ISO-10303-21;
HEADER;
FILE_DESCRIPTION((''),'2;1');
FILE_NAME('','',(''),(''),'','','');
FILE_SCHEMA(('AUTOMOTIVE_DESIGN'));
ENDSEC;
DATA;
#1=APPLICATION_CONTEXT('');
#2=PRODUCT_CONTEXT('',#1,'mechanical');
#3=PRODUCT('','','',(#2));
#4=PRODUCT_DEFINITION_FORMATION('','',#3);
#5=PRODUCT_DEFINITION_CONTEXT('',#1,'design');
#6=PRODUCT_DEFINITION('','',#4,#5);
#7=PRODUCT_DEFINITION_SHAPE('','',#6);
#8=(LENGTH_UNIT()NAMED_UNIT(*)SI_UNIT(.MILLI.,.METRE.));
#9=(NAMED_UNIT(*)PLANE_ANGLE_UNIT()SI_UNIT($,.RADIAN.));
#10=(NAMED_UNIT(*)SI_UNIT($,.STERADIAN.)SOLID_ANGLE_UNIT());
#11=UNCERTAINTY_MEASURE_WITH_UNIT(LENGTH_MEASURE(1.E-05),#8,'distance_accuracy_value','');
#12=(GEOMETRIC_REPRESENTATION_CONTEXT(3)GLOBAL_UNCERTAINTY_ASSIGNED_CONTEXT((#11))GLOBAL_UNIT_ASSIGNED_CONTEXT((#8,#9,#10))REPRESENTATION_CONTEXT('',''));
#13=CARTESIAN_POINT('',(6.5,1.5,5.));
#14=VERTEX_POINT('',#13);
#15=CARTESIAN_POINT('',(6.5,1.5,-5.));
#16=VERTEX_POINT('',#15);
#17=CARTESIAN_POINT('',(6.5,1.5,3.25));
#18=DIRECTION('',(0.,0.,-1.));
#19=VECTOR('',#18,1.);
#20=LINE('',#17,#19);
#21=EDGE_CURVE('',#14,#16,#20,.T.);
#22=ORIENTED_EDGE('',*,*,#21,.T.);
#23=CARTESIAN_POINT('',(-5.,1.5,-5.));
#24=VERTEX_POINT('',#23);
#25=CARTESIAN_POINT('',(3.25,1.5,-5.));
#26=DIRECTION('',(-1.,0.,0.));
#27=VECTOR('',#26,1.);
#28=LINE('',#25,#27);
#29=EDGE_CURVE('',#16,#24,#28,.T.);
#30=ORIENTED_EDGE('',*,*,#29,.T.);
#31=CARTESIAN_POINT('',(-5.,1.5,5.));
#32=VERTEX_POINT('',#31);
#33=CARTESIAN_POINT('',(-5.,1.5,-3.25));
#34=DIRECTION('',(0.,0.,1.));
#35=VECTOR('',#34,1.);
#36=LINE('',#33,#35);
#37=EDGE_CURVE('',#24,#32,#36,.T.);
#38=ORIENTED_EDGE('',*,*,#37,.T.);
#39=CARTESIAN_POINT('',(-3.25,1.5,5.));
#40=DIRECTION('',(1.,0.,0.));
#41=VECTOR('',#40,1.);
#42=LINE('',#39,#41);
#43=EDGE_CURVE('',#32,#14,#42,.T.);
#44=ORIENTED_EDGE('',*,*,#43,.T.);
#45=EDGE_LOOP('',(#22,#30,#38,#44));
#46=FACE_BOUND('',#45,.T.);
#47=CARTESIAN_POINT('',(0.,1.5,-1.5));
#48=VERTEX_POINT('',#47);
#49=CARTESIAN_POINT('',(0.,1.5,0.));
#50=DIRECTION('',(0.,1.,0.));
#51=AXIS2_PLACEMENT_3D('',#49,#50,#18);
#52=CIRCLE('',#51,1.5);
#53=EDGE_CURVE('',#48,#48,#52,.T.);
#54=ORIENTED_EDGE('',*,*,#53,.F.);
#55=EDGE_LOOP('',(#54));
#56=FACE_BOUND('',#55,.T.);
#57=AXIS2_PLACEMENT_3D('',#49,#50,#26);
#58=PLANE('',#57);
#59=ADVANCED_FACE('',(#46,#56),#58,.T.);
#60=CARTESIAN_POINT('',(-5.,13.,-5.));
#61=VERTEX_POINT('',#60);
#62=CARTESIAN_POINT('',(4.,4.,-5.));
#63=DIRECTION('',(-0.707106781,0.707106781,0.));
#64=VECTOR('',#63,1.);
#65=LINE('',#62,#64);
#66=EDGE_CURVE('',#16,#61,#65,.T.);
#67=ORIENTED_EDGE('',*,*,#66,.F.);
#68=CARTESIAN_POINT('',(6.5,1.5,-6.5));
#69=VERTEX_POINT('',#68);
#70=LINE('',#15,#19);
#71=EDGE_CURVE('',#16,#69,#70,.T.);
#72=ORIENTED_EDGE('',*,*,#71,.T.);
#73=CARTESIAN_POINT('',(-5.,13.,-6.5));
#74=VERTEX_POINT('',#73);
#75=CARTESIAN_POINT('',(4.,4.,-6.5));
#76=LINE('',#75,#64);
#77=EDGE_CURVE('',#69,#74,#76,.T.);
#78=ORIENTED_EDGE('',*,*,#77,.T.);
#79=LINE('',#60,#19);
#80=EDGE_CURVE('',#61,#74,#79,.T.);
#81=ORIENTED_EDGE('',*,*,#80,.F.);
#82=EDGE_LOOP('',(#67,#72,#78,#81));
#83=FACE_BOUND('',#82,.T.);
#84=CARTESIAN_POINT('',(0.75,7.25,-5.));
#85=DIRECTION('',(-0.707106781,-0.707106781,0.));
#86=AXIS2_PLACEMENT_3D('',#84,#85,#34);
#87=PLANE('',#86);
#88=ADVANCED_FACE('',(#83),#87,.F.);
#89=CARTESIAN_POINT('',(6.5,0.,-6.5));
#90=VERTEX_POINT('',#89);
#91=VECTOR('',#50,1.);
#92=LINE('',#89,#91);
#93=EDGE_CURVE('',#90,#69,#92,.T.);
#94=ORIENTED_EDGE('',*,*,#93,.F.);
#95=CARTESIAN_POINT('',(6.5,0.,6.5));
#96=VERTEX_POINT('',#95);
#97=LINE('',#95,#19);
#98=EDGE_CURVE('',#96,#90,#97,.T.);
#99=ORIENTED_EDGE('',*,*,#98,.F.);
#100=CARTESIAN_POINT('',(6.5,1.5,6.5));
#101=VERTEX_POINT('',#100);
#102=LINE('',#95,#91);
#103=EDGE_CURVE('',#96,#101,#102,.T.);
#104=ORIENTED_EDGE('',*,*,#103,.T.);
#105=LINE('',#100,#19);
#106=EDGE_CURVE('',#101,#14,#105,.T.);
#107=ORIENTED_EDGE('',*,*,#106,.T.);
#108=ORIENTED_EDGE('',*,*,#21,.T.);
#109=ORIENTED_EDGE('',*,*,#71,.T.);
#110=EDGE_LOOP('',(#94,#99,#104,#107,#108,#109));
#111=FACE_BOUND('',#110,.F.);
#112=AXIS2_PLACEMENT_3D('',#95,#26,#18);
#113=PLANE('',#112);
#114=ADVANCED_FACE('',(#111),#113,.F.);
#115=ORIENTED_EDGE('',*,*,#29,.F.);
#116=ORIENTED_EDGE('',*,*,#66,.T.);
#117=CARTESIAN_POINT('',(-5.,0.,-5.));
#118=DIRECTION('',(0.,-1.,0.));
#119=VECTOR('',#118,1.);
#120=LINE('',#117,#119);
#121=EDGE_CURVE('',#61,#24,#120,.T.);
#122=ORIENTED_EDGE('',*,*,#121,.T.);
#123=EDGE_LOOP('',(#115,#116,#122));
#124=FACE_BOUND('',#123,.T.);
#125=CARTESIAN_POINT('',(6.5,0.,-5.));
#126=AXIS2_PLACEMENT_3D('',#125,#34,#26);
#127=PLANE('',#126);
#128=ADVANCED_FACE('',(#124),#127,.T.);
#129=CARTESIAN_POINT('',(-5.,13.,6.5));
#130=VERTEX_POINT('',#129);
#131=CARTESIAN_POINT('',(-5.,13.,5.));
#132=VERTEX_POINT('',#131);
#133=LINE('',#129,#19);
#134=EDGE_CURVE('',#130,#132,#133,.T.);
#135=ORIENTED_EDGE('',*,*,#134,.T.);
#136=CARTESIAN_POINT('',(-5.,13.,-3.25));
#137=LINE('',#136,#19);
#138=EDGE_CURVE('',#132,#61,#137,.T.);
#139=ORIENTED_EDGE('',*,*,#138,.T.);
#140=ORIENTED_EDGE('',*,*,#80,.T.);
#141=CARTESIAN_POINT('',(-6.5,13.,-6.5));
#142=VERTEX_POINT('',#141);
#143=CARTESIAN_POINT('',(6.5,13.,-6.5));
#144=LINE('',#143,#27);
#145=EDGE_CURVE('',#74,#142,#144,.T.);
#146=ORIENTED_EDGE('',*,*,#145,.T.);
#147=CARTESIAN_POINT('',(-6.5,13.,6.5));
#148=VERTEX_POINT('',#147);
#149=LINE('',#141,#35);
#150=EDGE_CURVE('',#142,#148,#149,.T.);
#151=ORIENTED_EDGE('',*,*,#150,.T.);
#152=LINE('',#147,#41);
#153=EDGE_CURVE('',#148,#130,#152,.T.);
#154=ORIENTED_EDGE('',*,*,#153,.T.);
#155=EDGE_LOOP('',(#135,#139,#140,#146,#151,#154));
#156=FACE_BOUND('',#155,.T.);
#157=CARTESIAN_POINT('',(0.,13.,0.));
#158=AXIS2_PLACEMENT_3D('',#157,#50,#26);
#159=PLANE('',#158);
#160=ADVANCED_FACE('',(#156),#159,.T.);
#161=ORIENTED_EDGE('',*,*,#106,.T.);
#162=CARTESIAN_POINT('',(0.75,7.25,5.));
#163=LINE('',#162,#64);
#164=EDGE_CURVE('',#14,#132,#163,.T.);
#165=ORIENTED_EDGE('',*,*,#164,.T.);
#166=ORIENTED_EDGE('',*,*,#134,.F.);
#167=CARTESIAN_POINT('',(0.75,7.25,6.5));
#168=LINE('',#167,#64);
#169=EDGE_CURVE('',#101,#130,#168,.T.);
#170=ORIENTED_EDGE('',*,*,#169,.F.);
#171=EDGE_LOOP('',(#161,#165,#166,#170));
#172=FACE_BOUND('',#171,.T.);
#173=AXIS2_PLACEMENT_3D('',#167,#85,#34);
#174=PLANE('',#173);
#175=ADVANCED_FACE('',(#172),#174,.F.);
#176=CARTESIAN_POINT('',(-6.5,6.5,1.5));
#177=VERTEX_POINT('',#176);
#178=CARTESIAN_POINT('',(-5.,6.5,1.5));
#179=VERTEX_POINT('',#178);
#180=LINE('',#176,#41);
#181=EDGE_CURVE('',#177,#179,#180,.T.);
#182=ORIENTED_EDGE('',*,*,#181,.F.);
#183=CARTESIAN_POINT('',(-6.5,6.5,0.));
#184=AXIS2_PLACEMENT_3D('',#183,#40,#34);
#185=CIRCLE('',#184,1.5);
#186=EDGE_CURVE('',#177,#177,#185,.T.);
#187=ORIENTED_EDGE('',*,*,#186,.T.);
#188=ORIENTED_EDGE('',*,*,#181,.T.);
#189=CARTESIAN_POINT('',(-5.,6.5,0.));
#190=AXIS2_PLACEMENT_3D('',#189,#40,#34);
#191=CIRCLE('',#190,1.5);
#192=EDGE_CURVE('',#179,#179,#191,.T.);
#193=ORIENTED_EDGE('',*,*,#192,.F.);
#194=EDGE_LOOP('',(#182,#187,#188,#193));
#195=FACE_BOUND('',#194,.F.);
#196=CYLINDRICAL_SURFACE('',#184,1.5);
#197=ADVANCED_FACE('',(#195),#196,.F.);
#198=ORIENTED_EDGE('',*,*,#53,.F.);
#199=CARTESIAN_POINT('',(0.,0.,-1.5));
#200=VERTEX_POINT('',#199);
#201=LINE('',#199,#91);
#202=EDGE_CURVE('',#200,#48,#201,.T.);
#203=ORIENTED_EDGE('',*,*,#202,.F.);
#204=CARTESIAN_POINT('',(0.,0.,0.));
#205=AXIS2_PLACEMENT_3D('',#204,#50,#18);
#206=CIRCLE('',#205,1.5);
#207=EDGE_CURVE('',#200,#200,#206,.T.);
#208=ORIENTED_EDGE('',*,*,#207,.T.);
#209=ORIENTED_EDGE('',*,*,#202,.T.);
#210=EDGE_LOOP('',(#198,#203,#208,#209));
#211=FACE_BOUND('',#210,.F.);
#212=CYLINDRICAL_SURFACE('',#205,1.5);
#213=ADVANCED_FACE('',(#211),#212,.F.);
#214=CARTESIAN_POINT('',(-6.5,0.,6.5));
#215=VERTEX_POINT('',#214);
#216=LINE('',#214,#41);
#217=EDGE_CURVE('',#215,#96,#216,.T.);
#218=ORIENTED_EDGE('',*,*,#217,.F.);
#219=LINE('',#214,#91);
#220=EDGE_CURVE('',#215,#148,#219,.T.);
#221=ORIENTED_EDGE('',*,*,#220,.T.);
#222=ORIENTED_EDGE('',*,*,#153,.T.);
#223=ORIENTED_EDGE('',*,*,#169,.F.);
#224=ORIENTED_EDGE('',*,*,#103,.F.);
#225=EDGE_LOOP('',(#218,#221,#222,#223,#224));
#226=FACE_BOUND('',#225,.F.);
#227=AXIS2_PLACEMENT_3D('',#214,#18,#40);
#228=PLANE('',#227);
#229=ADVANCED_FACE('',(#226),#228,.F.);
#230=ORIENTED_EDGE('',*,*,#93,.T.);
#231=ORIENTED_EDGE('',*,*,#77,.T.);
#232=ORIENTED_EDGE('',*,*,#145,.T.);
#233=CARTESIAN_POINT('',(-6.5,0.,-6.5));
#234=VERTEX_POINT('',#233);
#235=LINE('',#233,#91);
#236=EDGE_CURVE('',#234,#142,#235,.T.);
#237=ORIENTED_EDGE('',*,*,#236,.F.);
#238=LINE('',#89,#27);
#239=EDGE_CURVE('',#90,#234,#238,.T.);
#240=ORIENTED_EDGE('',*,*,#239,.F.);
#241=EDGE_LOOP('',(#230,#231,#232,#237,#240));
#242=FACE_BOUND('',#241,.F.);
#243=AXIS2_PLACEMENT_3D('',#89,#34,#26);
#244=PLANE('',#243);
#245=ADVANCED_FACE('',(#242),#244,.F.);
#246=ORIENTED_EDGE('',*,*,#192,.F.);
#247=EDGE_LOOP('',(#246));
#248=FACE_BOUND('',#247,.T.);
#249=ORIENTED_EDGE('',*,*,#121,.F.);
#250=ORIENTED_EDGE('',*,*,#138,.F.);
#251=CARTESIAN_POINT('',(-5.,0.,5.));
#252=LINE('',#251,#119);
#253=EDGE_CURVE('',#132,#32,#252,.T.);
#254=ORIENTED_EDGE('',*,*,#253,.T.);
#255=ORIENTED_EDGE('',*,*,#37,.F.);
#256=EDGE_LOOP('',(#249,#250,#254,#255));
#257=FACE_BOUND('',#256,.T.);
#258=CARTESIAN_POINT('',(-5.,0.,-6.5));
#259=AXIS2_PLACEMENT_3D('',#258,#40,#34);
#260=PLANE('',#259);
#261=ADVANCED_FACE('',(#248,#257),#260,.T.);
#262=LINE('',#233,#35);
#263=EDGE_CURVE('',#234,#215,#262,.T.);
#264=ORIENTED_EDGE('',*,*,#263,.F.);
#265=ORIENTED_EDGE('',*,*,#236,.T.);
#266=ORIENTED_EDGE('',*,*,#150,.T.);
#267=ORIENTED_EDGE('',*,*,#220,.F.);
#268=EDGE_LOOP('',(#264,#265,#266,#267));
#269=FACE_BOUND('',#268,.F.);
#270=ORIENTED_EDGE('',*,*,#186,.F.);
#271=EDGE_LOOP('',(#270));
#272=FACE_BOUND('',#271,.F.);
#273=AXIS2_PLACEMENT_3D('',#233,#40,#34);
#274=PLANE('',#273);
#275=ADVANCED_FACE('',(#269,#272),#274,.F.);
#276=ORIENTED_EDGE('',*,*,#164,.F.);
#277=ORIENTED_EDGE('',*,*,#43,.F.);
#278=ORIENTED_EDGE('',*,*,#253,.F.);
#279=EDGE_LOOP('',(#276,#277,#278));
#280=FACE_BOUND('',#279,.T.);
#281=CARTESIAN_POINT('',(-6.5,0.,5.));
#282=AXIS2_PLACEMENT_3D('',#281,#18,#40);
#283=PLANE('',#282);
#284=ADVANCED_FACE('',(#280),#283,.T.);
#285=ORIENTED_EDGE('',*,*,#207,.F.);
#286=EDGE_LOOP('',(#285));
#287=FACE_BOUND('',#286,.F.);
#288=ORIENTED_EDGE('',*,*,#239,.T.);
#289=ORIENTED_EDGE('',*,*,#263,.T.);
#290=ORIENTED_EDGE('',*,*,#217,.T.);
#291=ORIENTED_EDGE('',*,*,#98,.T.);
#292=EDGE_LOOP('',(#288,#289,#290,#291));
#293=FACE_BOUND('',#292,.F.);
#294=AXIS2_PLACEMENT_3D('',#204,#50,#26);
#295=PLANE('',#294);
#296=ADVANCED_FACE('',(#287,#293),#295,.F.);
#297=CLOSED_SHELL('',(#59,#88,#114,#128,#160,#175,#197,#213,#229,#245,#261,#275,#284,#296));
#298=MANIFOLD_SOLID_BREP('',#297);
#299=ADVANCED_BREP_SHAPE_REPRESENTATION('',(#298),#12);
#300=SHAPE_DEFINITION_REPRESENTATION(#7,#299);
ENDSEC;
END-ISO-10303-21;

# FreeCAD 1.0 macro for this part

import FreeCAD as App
import Part
import Sketcher

V = App.Vector


def edges_at(feature, points):
    """Names of the edges that pass closest to the given points."""
    edges = feature.Shape.Edges
    near = lambda p: min(range(len(edges)), key=lambda i: edges[i].distToShape(Part.Vertex(*p))[0])
    return sorted({f"Edge{near(p) + 1}" for p in points})


def faces_at(feature, points):
    """Names of the faces that lie closest to the given points."""
    faces = feature.Shape.Faces
    near = lambda p: min(range(len(faces)), key=lambda i: faces[i].distToShape(Part.Vertex(*p))[0])
    return sorted({f"Face{near(p) + 1}" for p in points})

doc = App.newDocument("Part")
body = doc.addObject("PartDesign::Body", "Body")

# Sketch on XZ plane
sketch1 = body.newObject("Sketcher::SketchObject", "Sketch")
sketch1.AttachmentSupport = (doc.getObject("XZ_Plane"), [""])
sketch1.MapMode = "FlatFace"
sketch1.addGeometry(Part.LineSegment(V(6.5, 6.5, 0), V(6.5, -6.5, 0)), False)
sketch1.addGeometry(Part.LineSegment(V(6.5, -6.5, 0), V(-6.5, -6.5, 0)), False)
sketch1.addGeometry(Part.LineSegment(V(-6.5, -6.5, 0), V(-6.5, 6.5, 0)), False)
sketch1.addGeometry(Part.LineSegment(V(-6.5, 6.5, 0), V(6.5, 6.5, 0)), False)
sketch1.addConstraint(Sketcher.Constraint("Coincident", 0, 2, 1, 1))
sketch1.addConstraint(Sketcher.Constraint("Coincident", 1, 2, 2, 1))
sketch1.addConstraint(Sketcher.Constraint("Coincident", 2, 2, 3, 1))
sketch1.addConstraint(Sketcher.Constraint("Coincident", 3, 2, 0, 1))
sketch1.addConstraint(Sketcher.Constraint("Vertical", 0))
sketch1.addConstraint(Sketcher.Constraint("Horizontal", 1))
sketch1.addConstraint(Sketcher.Constraint("Vertical", 2))
sketch1.addConstraint(Sketcher.Constraint("Horizontal", 3))
sketch1.addConstraint(Sketcher.Constraint("Symmetric", 0, 2, 2, 2, -1, 1))
sketch1.addConstraint(Sketcher.Constraint("Equal", 3, 0))
sketch1.addConstraint(Sketcher.Constraint("DistanceX", 1, 2, 1, 1, 13.0))
pad1 = body.newObject("PartDesign::Pad", "Pad")
pad1.Profile = sketch1
pad1.Length = 13
pad1.Reversed = True
doc.recompute()

thickness = body.newObject("PartDesign::Thickness", "Thickness")
thickness.Base = (pad1, faces_at(pad1, [(6.5, 4.333, 2.167), (-2.167, 13, -2.167)]))
thickness.Value = 1.5
thickness.Reversed = True
thickness.Join = "Intersection"
doc.recompute()

chamfer = body.newObject("PartDesign::Chamfer", "Chamfer")
chamfer.Base = (thickness, edges_at(thickness, [(6.5, 13, 5.75), (6.5, 13, -5.75)]))
chamfer.Size = 11.5

# Sketch on XZ plane
sketch2 = body.newObject("Sketcher::SketchObject", "Sketch001")
sketch2.AttachmentSupport = (doc.getObject("XZ_Plane"), [""])
sketch2.MapMode = "FlatFace"
sketch2.addGeometry(Part.Circle(V(0, 0, 0), V(0, 0, 1), 1.5), False)
sketch2.addConstraint(Sketcher.Constraint("Coincident", 0, 3, -1, 1))
sketch2.addConstraint(Sketcher.Constraint("Diameter", 0, 3.0))
doc.recompute()
hole = body.newObject("PartDesign::Hole", "Hole")
hole.Profile = sketch2
hole.ThreadType = "None"
hole.Diameter = 3
hole.DepthType = "Dimension"
hole.Depth = 3
hole.DrillPoint = "Angled"
hole.DrillPointAngle = 118

# Sketch on YZ plane
sketch3 = body.newObject("Sketcher::SketchObject", "Sketch002")
sketch3.AttachmentSupport = (doc.getObject("YZ_Plane"), [""])
sketch3.MapMode = "FlatFace"
sketch3.AttachmentOffset = App.Placement(V(0, 0, -6.5), App.Rotation())
sketch3.addGeometry(Part.Circle(V(6.5, 0, 0), V(0, 0, 1), 1.5), False)
sketch3.addConstraint(Sketcher.Constraint("PointOnObject", 0, 3, -1))
sketch3.addConstraint(Sketcher.Constraint("Diameter", 0, 3.0))
sketch3.addConstraint(Sketcher.Constraint("DistanceX", -1, 1, 0, 3, 6.5))
doc.recompute()
hole2 = body.newObject("PartDesign::Hole", "Hole001")
hole2.Profile = sketch3
hole2.ThreadType = "None"
hole2.Diameter = 3
hole2.DepthType = "Dimension"
hole2.Depth = 3
hole2.DrillPoint = "Angled"
hole2.DrillPointAngle = 118
hole2.Reversed = True

doc.recompute()
